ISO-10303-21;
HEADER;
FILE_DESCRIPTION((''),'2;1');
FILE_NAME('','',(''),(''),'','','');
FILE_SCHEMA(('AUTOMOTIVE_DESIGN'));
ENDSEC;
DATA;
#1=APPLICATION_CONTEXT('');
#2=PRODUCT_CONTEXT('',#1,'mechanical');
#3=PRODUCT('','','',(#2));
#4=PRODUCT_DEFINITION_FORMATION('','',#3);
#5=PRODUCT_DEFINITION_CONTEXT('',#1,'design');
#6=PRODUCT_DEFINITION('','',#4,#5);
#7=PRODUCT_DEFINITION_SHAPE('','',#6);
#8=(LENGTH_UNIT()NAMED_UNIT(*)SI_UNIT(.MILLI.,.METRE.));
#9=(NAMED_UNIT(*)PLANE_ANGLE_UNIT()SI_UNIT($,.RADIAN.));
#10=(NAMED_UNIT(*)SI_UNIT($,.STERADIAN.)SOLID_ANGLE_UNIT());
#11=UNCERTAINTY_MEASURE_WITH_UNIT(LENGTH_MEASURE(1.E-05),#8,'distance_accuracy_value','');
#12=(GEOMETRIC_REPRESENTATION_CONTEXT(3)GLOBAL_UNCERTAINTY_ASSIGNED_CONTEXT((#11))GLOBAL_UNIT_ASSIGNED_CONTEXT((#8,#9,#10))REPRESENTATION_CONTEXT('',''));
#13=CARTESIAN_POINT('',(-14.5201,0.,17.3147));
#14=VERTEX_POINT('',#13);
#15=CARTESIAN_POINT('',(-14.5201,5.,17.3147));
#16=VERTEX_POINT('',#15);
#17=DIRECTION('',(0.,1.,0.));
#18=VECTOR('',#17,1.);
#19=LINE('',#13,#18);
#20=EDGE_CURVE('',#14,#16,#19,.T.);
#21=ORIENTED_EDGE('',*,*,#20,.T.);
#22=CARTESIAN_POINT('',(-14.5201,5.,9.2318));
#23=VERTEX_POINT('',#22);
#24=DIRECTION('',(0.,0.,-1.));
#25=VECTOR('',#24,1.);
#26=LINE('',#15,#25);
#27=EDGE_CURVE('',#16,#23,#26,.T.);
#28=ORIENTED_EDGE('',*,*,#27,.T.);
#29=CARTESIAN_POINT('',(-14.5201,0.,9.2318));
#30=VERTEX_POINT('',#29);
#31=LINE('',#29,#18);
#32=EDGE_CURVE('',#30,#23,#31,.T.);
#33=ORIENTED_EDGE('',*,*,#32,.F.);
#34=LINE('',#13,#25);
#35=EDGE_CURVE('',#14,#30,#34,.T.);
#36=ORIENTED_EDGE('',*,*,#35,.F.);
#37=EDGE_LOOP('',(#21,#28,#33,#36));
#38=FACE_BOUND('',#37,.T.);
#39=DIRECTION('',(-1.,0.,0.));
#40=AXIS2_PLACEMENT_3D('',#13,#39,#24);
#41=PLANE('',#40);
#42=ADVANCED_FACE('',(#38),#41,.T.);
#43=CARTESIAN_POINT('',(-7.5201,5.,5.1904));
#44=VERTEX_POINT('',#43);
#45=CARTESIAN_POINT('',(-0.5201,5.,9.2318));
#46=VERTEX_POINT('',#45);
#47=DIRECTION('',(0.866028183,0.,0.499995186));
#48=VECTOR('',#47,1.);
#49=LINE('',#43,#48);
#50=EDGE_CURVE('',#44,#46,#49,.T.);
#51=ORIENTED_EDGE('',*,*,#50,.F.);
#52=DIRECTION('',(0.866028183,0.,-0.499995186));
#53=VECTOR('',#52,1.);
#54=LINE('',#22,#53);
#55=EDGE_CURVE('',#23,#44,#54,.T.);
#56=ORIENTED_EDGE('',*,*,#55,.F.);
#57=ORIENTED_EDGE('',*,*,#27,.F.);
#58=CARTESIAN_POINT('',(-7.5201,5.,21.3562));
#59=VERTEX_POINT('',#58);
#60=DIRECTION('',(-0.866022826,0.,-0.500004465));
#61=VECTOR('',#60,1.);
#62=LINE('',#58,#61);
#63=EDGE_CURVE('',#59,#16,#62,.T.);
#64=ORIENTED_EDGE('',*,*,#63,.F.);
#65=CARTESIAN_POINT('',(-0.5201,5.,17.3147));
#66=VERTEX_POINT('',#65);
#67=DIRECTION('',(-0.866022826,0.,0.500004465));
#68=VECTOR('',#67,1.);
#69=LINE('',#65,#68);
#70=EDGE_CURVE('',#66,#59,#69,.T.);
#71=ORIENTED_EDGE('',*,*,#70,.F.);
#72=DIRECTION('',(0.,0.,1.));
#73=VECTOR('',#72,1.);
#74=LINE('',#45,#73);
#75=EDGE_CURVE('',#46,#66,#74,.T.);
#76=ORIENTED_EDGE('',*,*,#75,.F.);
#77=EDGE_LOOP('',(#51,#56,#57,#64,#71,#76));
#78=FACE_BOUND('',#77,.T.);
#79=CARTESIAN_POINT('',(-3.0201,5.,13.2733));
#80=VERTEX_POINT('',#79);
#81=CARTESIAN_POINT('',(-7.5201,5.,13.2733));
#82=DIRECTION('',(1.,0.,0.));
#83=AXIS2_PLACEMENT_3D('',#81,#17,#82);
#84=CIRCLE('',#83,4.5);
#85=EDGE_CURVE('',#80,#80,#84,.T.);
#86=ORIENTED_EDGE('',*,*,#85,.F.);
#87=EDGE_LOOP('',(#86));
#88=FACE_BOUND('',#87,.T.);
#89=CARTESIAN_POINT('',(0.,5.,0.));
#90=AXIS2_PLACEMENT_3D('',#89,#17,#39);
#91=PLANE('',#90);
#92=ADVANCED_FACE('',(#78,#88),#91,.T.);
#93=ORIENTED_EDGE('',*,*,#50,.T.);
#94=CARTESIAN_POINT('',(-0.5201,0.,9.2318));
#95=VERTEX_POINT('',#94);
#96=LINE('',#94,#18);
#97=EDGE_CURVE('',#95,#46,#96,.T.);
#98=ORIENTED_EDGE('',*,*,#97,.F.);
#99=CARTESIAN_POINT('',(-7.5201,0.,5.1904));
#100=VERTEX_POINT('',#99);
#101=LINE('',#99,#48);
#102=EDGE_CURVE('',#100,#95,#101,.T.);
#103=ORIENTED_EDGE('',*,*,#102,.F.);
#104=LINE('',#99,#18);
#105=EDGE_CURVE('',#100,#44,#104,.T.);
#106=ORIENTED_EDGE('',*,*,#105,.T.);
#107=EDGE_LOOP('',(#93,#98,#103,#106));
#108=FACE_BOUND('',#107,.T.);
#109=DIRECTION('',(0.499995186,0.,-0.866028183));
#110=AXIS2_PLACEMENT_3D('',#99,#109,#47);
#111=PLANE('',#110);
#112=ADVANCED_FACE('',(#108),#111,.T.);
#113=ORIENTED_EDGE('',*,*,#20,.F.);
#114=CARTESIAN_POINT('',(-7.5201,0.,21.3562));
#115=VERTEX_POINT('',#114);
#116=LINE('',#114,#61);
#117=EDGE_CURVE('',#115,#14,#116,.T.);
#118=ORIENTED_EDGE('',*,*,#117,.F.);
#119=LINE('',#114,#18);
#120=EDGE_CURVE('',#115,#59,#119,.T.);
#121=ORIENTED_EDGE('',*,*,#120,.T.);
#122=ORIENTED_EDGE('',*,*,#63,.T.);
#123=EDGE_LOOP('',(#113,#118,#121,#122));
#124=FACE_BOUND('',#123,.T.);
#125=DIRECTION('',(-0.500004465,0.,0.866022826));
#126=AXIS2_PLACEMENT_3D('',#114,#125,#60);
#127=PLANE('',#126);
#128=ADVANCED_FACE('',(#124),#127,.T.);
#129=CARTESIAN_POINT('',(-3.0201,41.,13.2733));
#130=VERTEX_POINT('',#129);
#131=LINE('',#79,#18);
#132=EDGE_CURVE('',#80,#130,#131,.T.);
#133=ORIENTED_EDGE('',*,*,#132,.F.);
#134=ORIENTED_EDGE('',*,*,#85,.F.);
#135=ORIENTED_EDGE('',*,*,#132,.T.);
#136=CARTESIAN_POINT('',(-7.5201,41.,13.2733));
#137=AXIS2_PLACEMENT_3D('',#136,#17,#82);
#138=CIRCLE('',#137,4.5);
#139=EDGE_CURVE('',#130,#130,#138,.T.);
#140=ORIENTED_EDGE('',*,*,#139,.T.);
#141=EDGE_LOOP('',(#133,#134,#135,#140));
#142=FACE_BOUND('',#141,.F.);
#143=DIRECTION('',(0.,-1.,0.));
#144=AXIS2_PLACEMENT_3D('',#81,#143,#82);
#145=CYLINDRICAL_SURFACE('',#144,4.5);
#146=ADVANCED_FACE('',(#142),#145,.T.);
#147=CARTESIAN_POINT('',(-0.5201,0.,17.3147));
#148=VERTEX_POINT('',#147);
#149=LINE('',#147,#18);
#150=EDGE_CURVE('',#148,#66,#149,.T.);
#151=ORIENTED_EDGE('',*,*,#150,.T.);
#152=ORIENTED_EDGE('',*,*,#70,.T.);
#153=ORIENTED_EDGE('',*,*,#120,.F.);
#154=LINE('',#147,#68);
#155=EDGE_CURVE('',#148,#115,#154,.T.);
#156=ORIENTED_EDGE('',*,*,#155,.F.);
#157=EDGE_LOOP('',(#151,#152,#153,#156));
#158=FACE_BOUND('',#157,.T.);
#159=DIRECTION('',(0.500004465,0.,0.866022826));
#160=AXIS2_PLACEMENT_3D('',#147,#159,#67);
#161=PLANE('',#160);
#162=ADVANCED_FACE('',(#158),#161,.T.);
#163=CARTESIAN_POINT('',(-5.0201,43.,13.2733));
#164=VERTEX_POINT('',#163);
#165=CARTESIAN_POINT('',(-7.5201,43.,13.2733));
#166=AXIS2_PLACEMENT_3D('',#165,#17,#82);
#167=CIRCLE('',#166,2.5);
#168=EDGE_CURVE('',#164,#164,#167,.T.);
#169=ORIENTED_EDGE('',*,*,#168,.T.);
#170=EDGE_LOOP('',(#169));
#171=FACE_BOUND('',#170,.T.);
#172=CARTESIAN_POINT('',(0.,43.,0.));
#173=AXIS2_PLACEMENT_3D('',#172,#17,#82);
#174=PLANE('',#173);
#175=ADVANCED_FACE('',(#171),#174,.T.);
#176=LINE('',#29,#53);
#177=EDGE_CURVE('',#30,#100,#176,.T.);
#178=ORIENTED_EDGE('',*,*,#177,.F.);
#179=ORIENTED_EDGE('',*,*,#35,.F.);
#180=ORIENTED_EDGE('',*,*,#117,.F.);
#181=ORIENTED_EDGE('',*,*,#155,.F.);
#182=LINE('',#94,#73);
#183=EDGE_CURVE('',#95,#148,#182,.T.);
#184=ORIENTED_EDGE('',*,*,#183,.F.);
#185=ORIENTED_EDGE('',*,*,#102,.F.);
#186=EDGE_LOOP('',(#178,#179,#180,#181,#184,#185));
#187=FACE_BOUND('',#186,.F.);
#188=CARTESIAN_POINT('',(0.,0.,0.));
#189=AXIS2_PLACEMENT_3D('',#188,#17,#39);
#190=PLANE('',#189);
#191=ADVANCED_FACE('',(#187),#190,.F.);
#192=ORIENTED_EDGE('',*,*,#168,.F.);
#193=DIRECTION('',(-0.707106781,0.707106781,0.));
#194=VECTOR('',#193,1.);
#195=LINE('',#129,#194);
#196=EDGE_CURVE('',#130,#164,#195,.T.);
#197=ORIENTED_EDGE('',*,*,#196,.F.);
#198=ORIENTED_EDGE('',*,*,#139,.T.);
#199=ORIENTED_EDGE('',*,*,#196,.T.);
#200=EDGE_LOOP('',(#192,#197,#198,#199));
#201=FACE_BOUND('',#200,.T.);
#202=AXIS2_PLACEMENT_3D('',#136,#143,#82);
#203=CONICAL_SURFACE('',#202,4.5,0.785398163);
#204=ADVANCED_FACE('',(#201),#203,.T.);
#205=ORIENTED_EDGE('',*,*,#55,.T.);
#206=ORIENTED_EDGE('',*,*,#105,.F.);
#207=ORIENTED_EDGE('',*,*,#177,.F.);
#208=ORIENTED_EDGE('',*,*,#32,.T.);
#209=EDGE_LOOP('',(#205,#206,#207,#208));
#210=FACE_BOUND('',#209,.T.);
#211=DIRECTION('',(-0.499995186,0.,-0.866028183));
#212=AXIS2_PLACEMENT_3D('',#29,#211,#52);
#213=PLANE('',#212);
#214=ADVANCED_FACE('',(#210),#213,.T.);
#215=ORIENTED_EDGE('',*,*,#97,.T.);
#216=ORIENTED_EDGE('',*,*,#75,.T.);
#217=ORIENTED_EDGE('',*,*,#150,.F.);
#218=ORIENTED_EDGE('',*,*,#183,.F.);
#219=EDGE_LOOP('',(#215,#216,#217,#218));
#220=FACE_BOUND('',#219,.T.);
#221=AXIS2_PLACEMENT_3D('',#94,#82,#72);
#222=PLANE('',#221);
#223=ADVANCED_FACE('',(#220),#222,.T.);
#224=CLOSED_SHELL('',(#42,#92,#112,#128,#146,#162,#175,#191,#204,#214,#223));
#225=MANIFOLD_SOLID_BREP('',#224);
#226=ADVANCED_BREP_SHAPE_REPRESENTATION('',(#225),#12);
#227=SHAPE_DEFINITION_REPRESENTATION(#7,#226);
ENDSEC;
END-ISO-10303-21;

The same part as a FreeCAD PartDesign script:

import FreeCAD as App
import Part
import Sketcher
from FreeCAD import Vector
Q = App.Units.Quantity


def edges_at(feature, points):
    """Names of the edges that pass closest to the given points."""
    edges = feature.Shape.Edges
    near = lambda p: min(range(len(edges)), key=lambda i: edges[i].distToShape(Part.Vertex(*p))[0])
    return sorted({f"Edge{near(p) + 1}" for p in points})


def add_polygon(sketch, points):
    """Adds a closed chain of lines whose ends are joined by coincident constraints."""
    first, n = sketch.GeometryCount, len(points)
    for a, b in zip(points, points[1:] + points[:1]):
        sketch.addGeometry(Part.LineSegment(App.Vector(*a, 0), App.Vector(*b, 0)), False)
    for i in range(n):
        sketch.addConstraint(Sketcher.Constraint("Coincident", first + i, 2, first + (i + 1) % n, 1))

doc = App.newDocument("Part")
params = doc.addObject("Spreadsheet::Sheet", "Params")
for row, (alias, value) in enumerate([
    ("pad1_length", "5 mm"),
    ("sketch2_diameter", "9 mm"),
    ("pad2_length", "38 mm"),
    ("chamfer_size", "2 mm"),
], start=1):
    params.set(f"A{row}", alias)
    params.set(f"B{row}", "=" + value)
    params.setAlias(f"B{row}", alias)

body = doc.addObject("PartDesign::Body", "Body")

# Sketch on XZ plane
sketch1 = doc.addObject("Sketcher::SketchObject", "Sketch")
body.addObject(sketch1)
sketch1.AttachmentSupport = (doc.XZ_Plane, [""])
sketch1.MapMode = "FlatFace"
add_polygon(sketch1, [(-15, 17), (-8, 21), (-1, 17), (-1, 9), (-8, 5), (-15, 9)])  # lines 0-5
sketch1.addConstraint(Sketcher.Constraint("Vertical", 2))
sketch1.addConstraint(Sketcher.Constraint("Vertical", 5))
sketch1.addConstraint(Sketcher.Constraint("Parallel", 0, 3))
sketch1.addConstraint(Sketcher.Constraint("Parallel", 1, 4))
sketch1.addConstraint(Sketcher.Constraint("Horizontal", 2, 2, 4, 2))
sketch1.addConstraint(Sketcher.Constraint("Horizontal", 1, 2, 5, 2))
sketch1.addConstraint(Sketcher.Constraint("Vertical", 0, 2, 3, 2))
sketch1.addConstraint(Sketcher.Constraint("DistanceX", 4, 2, 2, 2, Q("14 mm")))
sketch1.addConstraint(Sketcher.Constraint("Angle", 0, Q("30.0003 deg")))
sketch1.addConstraint(Sketcher.Constraint("DistanceY", 2, 2, 2, 1, Q("8.083 mm")))
sketch1.addConstraint(Sketcher.Constraint("DistanceX", 0, 2, -1, 1, Q("7.52 mm")))
sketch1.addConstraint(Sketcher.Constraint("DistanceY", -1, 1, 0, 2, Q("21.3562 mm")))
pad1 = doc.addObject("PartDesign::Pad", "Pad")
body.addObject(pad1)
pad1.Profile = sketch1
pad1.setExpression("Length", "Params.pad1_length")
pad1.Reversed = True

# Sketch on XZ plane
sketch2 = doc.addObject("Sketcher::SketchObject", "Sketch001")
body.addObject(sketch2)
sketch2.AttachmentSupport = (doc.XZ_Plane, [""])
sketch2.MapMode = "FlatFace"
sketch2.AttachmentOffset = App.Placement(Vector(0, 0, -5), App.Rotation())
sketch2.addGeometry(Part.Circle(Vector(-7.5, 13.3, 0), Vector(0, 0, 1), 4.5), False)
sketch2.addConstraint(Sketcher.Constraint("Diameter", 0, Q("9 mm")))
sketch2.addConstraint(Sketcher.Constraint("DistanceX", 0, 3, -1, 1, Q("7.52 mm")))
sketch2.addConstraint(Sketcher.Constraint("DistanceY", -1, 1, 0, 3, Q("13.2733 mm")))
sketch2.setExpression("Constraints[0]", "Params.sketch2_diameter")
pad2 = doc.addObject("PartDesign::Pad", "Pad001")
body.addObject(pad2)
pad2.Profile = sketch2
pad2.setExpression("Length", "Params.pad2_length")
pad2.Reversed = True
doc.recompute()

chamfer = doc.addObject("PartDesign::Chamfer", "Chamfer")
body.addObject(chamfer)
chamfer.Base = (pad2, edges_at(pad2, [(-12.02, 43, 13.273)]))
chamfer.setExpression("Size", "Params.chamfer_size")

doc.recompute()
